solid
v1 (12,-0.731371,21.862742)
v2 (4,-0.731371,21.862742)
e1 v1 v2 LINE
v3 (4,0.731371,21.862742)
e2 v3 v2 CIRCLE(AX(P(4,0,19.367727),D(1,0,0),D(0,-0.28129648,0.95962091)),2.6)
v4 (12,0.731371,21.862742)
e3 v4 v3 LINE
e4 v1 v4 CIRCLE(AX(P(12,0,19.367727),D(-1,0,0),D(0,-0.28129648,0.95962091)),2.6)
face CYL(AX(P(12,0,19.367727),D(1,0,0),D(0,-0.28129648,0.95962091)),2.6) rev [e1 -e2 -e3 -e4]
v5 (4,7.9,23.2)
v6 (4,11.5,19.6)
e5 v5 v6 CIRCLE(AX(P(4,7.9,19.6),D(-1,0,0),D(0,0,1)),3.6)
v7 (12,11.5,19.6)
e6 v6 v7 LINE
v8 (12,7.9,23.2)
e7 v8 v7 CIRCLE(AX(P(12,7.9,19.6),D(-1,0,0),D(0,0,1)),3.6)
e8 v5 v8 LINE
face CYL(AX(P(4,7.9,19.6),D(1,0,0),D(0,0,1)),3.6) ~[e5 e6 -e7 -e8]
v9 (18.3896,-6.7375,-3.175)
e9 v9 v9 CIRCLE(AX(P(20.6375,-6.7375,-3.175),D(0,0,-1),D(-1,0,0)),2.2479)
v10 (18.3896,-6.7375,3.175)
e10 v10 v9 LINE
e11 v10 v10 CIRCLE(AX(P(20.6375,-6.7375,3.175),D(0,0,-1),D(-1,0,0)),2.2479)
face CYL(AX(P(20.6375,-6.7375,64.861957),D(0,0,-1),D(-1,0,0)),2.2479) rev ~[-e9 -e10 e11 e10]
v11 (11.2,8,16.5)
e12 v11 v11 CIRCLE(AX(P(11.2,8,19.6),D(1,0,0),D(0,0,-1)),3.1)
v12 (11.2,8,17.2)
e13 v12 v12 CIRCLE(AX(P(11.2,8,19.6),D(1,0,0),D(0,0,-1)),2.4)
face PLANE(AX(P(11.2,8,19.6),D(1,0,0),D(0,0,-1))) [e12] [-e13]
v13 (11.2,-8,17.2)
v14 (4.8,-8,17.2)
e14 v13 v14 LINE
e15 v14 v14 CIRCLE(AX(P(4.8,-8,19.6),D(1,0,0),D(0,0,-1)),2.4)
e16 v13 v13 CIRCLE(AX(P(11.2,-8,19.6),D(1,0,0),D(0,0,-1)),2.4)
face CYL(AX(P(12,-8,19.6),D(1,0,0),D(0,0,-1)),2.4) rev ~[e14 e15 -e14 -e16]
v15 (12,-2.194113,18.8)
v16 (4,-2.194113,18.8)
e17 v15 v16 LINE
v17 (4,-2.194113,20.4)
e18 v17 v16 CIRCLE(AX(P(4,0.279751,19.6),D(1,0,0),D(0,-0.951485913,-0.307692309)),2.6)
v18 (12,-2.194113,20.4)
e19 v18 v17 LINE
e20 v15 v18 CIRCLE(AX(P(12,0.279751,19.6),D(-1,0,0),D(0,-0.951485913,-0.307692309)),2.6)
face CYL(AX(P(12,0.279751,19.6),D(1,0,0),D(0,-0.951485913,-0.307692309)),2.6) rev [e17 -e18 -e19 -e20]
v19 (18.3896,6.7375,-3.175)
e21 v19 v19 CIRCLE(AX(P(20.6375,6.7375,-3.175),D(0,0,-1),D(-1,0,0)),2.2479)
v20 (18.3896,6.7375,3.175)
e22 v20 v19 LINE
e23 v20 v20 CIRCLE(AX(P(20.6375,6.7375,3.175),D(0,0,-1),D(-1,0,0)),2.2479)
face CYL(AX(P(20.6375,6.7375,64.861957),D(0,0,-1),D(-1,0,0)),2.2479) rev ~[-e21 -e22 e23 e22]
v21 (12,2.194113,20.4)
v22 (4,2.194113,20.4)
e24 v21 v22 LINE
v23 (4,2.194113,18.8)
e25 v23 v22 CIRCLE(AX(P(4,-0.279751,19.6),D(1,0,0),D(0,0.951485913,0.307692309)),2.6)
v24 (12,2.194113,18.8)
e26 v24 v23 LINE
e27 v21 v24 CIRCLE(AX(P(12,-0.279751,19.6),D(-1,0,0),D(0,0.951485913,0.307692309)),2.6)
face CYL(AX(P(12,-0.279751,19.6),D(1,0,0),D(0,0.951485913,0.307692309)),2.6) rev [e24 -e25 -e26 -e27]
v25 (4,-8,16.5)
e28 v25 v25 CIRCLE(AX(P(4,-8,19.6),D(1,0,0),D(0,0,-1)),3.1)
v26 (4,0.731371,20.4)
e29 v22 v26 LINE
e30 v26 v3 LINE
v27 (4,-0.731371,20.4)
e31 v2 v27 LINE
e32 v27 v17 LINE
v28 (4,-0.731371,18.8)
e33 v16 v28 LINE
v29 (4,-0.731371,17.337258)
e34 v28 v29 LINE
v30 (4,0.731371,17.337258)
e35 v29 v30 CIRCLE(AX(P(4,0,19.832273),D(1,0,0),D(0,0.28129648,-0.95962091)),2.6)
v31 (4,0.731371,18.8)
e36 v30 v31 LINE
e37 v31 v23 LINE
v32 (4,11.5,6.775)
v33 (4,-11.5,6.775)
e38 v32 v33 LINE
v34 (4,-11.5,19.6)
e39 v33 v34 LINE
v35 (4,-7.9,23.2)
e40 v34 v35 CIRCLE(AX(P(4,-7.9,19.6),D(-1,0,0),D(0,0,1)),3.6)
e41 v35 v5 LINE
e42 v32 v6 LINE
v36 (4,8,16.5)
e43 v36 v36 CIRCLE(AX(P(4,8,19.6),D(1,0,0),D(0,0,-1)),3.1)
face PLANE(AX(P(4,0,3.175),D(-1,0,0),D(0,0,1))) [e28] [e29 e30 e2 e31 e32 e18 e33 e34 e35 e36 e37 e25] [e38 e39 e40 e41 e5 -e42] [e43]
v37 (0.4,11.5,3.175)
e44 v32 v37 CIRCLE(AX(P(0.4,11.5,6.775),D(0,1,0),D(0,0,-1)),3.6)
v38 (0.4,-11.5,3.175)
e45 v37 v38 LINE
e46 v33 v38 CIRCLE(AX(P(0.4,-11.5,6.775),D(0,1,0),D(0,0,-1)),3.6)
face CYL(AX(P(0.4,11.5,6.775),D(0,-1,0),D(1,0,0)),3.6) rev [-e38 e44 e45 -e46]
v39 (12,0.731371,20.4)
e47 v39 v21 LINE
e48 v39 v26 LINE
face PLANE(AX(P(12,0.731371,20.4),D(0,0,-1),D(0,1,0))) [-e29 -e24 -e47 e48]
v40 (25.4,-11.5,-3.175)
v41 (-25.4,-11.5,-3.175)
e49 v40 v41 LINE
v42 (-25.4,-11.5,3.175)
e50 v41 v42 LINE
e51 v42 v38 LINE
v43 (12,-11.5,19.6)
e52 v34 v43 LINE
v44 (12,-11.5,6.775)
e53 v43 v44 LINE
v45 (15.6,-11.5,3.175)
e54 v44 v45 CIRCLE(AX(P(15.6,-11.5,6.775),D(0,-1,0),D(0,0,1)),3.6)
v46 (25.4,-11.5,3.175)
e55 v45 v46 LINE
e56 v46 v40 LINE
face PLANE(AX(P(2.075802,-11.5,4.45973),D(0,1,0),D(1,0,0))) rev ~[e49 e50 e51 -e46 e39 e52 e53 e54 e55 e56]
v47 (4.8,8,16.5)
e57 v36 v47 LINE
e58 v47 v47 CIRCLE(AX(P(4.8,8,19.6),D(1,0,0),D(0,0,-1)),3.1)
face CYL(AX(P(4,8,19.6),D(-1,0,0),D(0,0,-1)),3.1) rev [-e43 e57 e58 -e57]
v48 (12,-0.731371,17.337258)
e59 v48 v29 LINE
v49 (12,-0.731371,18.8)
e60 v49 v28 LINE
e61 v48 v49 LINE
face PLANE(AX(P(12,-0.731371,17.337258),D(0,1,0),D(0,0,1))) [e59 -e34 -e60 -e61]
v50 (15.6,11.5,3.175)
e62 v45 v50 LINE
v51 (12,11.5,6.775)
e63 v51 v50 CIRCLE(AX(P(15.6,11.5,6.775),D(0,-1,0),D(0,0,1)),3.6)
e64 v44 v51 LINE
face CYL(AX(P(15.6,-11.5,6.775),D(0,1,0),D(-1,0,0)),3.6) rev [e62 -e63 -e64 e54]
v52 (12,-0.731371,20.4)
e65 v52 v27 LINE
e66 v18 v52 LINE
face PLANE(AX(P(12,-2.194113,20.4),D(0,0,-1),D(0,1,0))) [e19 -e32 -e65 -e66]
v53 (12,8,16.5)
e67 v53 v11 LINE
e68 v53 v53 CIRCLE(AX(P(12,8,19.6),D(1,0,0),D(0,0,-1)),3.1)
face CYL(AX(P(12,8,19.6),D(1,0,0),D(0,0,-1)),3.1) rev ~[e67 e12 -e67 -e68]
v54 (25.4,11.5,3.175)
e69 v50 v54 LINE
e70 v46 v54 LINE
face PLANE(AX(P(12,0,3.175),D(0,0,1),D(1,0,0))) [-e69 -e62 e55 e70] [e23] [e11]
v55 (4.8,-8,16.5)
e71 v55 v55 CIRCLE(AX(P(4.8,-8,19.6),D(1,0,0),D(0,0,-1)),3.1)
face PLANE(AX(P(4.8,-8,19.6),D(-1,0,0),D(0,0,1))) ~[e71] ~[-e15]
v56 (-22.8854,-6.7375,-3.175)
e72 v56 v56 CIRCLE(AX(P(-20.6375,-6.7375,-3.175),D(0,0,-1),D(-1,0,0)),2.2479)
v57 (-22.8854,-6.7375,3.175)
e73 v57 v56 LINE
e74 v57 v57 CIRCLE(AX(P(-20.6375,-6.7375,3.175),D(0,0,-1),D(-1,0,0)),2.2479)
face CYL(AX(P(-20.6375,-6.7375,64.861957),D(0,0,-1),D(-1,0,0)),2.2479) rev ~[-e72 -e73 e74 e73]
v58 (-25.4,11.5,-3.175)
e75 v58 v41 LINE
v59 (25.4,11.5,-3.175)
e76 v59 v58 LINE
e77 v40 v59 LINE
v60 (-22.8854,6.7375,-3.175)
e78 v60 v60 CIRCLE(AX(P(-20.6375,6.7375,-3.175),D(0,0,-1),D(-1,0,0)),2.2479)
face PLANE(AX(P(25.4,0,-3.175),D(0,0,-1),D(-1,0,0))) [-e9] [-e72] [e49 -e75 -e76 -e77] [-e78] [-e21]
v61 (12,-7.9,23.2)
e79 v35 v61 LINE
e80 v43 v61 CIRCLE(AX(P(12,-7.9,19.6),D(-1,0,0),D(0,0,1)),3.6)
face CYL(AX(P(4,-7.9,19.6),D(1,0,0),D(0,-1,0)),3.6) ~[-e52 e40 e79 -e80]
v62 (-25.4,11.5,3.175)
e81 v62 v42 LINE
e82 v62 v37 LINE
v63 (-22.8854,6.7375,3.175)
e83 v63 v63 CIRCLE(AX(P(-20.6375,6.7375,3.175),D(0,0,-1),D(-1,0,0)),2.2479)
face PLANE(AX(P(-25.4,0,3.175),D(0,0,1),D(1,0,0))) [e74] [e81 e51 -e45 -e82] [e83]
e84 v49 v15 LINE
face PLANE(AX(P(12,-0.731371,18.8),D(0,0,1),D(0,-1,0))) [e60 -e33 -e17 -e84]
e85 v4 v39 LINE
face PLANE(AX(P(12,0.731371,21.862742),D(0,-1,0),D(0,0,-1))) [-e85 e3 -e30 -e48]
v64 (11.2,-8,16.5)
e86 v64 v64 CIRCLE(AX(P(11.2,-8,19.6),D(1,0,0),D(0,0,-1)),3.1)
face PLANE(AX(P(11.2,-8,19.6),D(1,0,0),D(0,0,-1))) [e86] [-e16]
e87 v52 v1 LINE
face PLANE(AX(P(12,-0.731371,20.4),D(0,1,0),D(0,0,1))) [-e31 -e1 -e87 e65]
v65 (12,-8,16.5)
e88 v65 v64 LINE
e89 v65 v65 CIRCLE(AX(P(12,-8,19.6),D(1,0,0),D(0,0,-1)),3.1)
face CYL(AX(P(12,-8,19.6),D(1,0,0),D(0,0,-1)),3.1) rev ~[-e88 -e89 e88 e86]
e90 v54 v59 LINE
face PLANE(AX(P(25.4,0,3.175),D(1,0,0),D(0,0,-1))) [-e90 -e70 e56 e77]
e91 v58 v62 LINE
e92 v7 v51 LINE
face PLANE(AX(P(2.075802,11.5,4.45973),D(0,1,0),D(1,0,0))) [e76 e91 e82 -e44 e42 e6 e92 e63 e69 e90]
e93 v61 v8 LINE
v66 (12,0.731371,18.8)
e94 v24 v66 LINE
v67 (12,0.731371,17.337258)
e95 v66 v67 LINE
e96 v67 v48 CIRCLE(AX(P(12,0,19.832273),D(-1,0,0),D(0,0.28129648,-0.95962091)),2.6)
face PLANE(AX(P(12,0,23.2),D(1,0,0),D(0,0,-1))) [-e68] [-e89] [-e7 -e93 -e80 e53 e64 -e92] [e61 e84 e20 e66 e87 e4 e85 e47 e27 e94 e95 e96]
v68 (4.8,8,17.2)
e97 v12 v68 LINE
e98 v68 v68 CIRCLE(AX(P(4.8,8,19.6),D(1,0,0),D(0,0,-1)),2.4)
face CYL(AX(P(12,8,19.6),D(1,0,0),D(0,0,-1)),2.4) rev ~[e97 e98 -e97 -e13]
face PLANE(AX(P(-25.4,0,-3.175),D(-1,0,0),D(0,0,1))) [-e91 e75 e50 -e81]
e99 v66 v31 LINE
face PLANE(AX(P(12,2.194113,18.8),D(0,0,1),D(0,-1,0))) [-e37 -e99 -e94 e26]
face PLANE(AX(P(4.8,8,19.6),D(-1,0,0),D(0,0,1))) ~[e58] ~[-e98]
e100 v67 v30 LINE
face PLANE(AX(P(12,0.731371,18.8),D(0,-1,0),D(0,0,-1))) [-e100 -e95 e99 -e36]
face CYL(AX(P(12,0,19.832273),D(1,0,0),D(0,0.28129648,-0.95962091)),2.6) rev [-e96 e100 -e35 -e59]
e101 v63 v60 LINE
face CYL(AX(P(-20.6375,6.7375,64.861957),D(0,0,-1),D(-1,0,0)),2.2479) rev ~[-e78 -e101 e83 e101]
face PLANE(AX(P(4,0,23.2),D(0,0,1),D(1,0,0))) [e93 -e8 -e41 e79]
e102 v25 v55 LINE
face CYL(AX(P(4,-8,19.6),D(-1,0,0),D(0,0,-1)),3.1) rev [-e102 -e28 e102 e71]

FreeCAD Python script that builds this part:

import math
import FreeCAD as App
import Part
import Sketcher


def edges_at(feature, points):
    """Names of the edges that pass closest to the given points."""
    edges = feature.Shape.Edges
    near = lambda p: min(range(len(edges)), key=lambda i: edges[i].distToShape(Part.Vertex(*p))[0])
    return sorted({f"Edge{near(p) + 1}" for p in points})


def add_polygon(sketch, points):
    """Adds a closed chain of lines whose ends are joined by coincident constraints."""
    first, n = sketch.GeometryCount, len(points)
    for a, b in zip(points, points[1:] + points[:1]):
        sketch.addGeometry(Part.LineSegment(App.Vector(*a, 0), App.Vector(*b, 0)), False)
    for i in range(n):
        sketch.addConstraint(Sketcher.Constraint("Coincident", first + i, 2, first + (i + 1) % n, 1))

doc = App.newDocument("Part")
body = doc.addObject("PartDesign::Body", "Body")

# Sketch on XZ plane
sketch1 = body.newObject("Sketcher::SketchObject", "Sketch")
sketch1.AttachmentSupport = (doc.getObject("XZ_Plane"), [""])
sketch1.MapMode = "FlatFace"
add_polygon(sketch1, [(4, 3.175), (4, 23.2), (12, 23.2), (12, 3.175), (25.4, 3.175), (25.4, -3.175), (-25.4, -3.175), (-25.4, 3.175)])  # lines 0-7
sketch1.addConstraint([
    Sketcher.Constraint("Vertical", 0),
    Sketcher.Constraint("Horizontal", 1),
    Sketcher.Constraint("Vertical", 2),
    Sketcher.Constraint("Horizontal", 3),
    Sketcher.Constraint("Vertical", 4),
    Sketcher.Constraint("Horizontal", 5),
    Sketcher.Constraint("Vertical", 6),
    Sketcher.Constraint("Horizontal", 7),
    Sketcher.Constraint("Symmetric", 3, 2, 5, 2, -1, 1),
    Sketcher.Constraint("Horizontal", 3, 2, 6, 2),
    Sketcher.Constraint("DistanceX", 1, 1, 1, 2, 8.0),
    Sketcher.Constraint("DistanceX", 3, 1, 3, 2, 13.4),
    Sketcher.Constraint("DistanceX", 5, 2, 5, 1, 50.8),
    Sketcher.Constraint("DistanceY", 4, 2, 4, 1, 6.35),
    Sketcher.Constraint("DistanceY", -1, 1, 0, 2, 23.2),
])
pad1 = body.newObject("PartDesign::Pad", "Pad")
pad1.Profile = sketch1
pad1.Length = 23
pad1.Midplane = True

# Sketch on YZ plane
sketch2 = body.newObject("Sketcher::SketchObject", "Sketch001")
sketch2.AttachmentSupport = (doc.getObject("YZ_Plane"), [""])
sketch2.MapMode = "FlatFace"
sketch2.AttachmentOffset = App.Placement(App.Vector(0, 0, 12), App.Rotation())
sketch2.addGeometry([
    Part.Circle(App.Vector(8, 19.6, 0), App.Vector(0, 0, 1), 2.4),  # 0
    Part.ArcOfCircle(Part.Circle(App.Vector(0, 19.832273, 0), App.Vector(0, 0, 1), 2.6), math.radians(-106.337598), math.radians(-73.662402)),  # 1
    Part.LineSegment(App.Vector(0.731371, 17.337258, 0), App.Vector(0.731371, 18.8, 0)),  # 2
    Part.LineSegment(App.Vector(0.731371, 18.8, 0), App.Vector(2.194113, 18.8, 0)),  # 3
    Part.ArcOfCircle(Part.Circle(App.Vector(-0.279751, 19.6, 0), App.Vector(0, 0, 1), 2.6), math.radians(-17.920213), math.radians(17.920213)),  # 4
    Part.LineSegment(App.Vector(2.194113, 20.4, 0), App.Vector(0.731371, 20.4, 0)),  # 5
    Part.LineSegment(App.Vector(0.731371, 20.4, 0), App.Vector(0.731371, 21.862742, 0)),  # 6
    Part.ArcOfCircle(Part.Circle(App.Vector(0, 19.367727, 0), App.Vector(0, 0, 1), 2.6), math.radians(73.662402), math.radians(106.337598)),  # 7
    Part.LineSegment(App.Vector(-0.731371, 21.862742, 0), App.Vector(-0.731371, 20.4, 0)),  # 8
    Part.LineSegment(App.Vector(-0.731371, 20.4, 0), App.Vector(-2.194113, 20.4, 0)),  # 9
    Part.ArcOfCircle(Part.Circle(App.Vector(0.279751, 19.6, 0), App.Vector(0, 0, 1), 2.6), math.radians(162.079787), math.radians(197.920213)),  # 10
    Part.LineSegment(App.Vector(-2.194113, 18.8, 0), App.Vector(-0.731371, 18.8, 0)),  # 11
    Part.LineSegment(App.Vector(-0.731371, 18.8, 0), App.Vector(-0.731371, 17.337258, 0)),  # 12
    Part.Circle(App.Vector(-8, 19.6, 0), App.Vector(0, 0, 1), 2.4),  # 13
], False)
sketch2.addConstraint([
    Sketcher.Constraint("Coincident", 1, 2, 2, 1),
    Sketcher.Constraint("Coincident", 2, 2, 3, 1),
    Sketcher.Constraint("Coincident", 3, 2, 4, 1),
    Sketcher.Constraint("Coincident", 4, 2, 5, 1),
    Sketcher.Constraint("Coincident", 5, 2, 6, 1),
    Sketcher.Constraint("Coincident", 6, 2, 7, 1),
    Sketcher.Constraint("Coincident", 7, 2, 8, 1),
    Sketcher.Constraint("Coincident", 8, 2, 9, 1),
    Sketcher.Constraint("Coincident", 9, 2, 10, 1),
    Sketcher.Constraint("Coincident", 10, 2, 11, 1),
    Sketcher.Constraint("Coincident", 11, 2, 12, 1),
    Sketcher.Constraint("Coincident", 12, 2, 1, 1),
    Sketcher.Constraint("Vertical", 2),
    Sketcher.Constraint("Horizontal", 3),
    Sketcher.Constraint("Horizontal", 5),
    Sketcher.Constraint("Vertical", 6),
    Sketcher.Constraint("Vertical", 8),
    Sketcher.Constraint("Horizontal", 9),
    Sketcher.Constraint("Horizontal", 11),
    Sketcher.Constraint("Vertical", 12),
    Sketcher.Constraint("Equal", 1, 4),
    Sketcher.Constraint("Equal", 4, 7),
    Sketcher.Constraint("Equal", 7, 10),
    Sketcher.Constraint("Equal", 0, 13),
    Sketcher.Constraint("Symmetric", 4, 3, 10, 3, -2),
    Sketcher.Constraint("Symmetric", 0, 3, 13, 3, -2),
    Sketcher.Constraint("Symmetric", 6, 2, 7, 2, -2),
    Sketcher.Constraint("Symmetric", 2, 2, 11, 2, -2),
    Sketcher.Constraint("PointOnObject", 1, 3, -2),
    Sketcher.Constraint("Horizontal", 0, 3, 4, 3),
    Sketcher.Constraint("Horizontal", 5, 2, 8, 2),
    Sketcher.Constraint("Vertical", 3, 2, 4, 2),
    Sketcher.Constraint("Vertical", 2, 2, 5, 2),
    Sketcher.Constraint("Equal", 11, 2),
    Sketcher.Constraint("Equal", 2, 6),
    Sketcher.Constraint("Diameter", 0, 4.8),
    Sketcher.Constraint("Radius", 1, 2.6),
    Sketcher.Constraint("DistanceX", -1, 1, 0, 3, 8.0),
    Sketcher.Constraint("DistanceY", -1, 1, 0, 3, 19.6),
    Sketcher.Constraint("DistanceY", -1, 1, 2, 2, 18.8),
    Sketcher.Constraint("DistanceX", 3, 1, 3, 2, 1.462742),
    Sketcher.Constraint("DistanceX", 4, 3, 10, 3, 0.559502),
])
pocket1 = body.newObject("PartDesign::Pocket", "Pocket")
pocket1.Profile = sketch2
pocket1.Type = "ThroughAll"

# Sketch on YZ plane
sketch3 = body.newObject("Sketcher::SketchObject", "Sketch002")
sketch3.AttachmentSupport = (doc.getObject("YZ_Plane"), [""])
sketch3.MapMode = "FlatFace"
sketch3.AttachmentOffset = App.Placement(App.Vector(0, 0, 12), App.Rotation())
sketch3.addGeometry([
    Part.Circle(App.Vector(8, 19.6, 0), App.Vector(0, 0, 1), 3.1),
    Part.Circle(App.Vector(8, 19.6, 0), App.Vector(0, 0, 1), 2.4),
    Part.Circle(App.Vector(-8, 19.6, 0), App.Vector(0, 0, 1), 3.1),
    Part.Circle(App.Vector(-8, 19.6, 0), App.Vector(0, 0, 1), 2.4),
], False)
sketch3.addConstraint([
    Sketcher.Constraint("Coincident", 1, 3, 0, 3),
    Sketcher.Constraint("Coincident", 3, 3, 2, 3),
    Sketcher.Constraint("Equal", 0, 2),
    Sketcher.Constraint("Equal", 1, 3),
    Sketcher.Constraint("Symmetric", 0, 3, 2, 3, -2),
    Sketcher.Constraint("Diameter", 0, 6.2),
    Sketcher.Constraint("Diameter", 1, 4.8),
    Sketcher.Constraint("DistanceX", -1, 1, 0, 3, 8.0),
    Sketcher.Constraint("DistanceY", -1, 1, 0, 3, 19.6),
])
pocket2 = body.newObject("PartDesign::Pocket", "Pocket001")
pocket2.Profile = sketch3
pocket2.Length = 0.8
doc.recompute()

datumplane = body.newObject("PartDesign::Plane", "DatumPlane")
datumplane.AttachmentSupport = (doc.getObject("YZ_Plane"), [""])
datumplane.MapMode = "FlatFace"
datumplane.AttachmentOffset = App.Placement(App.Vector(0, 0, 8), App.Rotation())
mirrored = body.newObject("PartDesign::Mirrored", "Mirrored")
mirrored.Originals = [pocket2]
mirrored.MirrorPlane = (datumplane, [""])
body.Tip = mirrored
doc.recompute()

fillet = body.newObject("PartDesign::Fillet", "Fillet")
fillet.Base = (mirrored, edges_at(mirrored, [
    (8, -11.5, 23.2),
    (12, 0, 3.175),
    (4, 0, 3.175),
    (8, 11.5, 23.2),
]))
fillet.Radius = 3.6

# Sketch on XY plane
sketch4 = body.newObject("Sketcher::SketchObject", "Sketch003")
sketch4.AttachmentSupport = (doc.getObject("XY_Plane"), [""])
sketch4.MapMode = "FlatFace"
sketch4.AttachmentOffset = App.Placement(App.Vector(0, 0, 3.175), App.Rotation())
sketch4.addGeometry([
    Part.Circle(App.Vector(-20.6375, 6.7375, 0), App.Vector(0, 0, 1), 2.2479),
    Part.Circle(App.Vector(-20.6375, -6.7375, 0), App.Vector(0, 0, 1), 2.2479),
    Part.Circle(App.Vector(20.6375, -6.7375, 0), App.Vector(0, 0, 1), 2.2479),
    Part.Circle(App.Vector(20.6375, 6.7375, 0), App.Vector(0, 0, 1), 2.2479),
], False)
sketch4.addConstraint([
    Sketcher.Constraint("Equal", 0, 1),
    Sketcher.Constraint("Equal", 1, 2),
    Sketcher.Constraint("Equal", 2, 3),
    Sketcher.Constraint("Symmetric", 0, 3, 2, 3, -1, 1),
    Sketcher.Constraint("Symmetric", 1, 3, 3, 3, -1, 1),
    Sketcher.Constraint("Symmetric", 1, 3, 2, 3, -2),
    Sketcher.Constraint("Diameter", 0, 4.4958),
    Sketcher.Constraint("DistanceY", 1, 3, 0, 3, 13.475),
    Sketcher.Constraint("DistanceX", 1, 3, 2, 3, 41.275),
])
doc.recompute()
hole = body.newObject("PartDesign::Hole", "Hole")
hole.Profile = sketch4
hole.ThreadType = "None"
hole.Diameter = 4.4958
hole.DepthType = "ThroughAll"

doc.recompute()
